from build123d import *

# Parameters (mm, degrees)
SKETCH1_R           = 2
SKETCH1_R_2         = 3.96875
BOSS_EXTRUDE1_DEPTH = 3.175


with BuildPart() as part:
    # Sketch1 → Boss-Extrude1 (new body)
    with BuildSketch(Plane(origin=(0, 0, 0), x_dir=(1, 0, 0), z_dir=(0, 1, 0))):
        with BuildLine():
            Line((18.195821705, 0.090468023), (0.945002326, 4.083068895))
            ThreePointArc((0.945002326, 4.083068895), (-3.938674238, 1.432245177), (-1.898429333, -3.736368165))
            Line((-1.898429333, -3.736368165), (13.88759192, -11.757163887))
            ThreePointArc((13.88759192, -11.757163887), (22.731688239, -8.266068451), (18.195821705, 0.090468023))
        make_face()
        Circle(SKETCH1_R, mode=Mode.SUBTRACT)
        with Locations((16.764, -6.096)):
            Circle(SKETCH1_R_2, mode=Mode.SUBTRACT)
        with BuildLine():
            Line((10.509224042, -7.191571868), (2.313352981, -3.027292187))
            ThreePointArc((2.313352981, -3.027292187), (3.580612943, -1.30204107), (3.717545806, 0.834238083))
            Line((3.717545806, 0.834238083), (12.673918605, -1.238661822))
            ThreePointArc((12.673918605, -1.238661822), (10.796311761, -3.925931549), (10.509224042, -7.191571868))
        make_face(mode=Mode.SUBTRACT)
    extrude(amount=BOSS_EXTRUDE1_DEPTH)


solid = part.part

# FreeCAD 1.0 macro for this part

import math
import FreeCAD as App
import Part
import Sketcher
Q = App.Units.Quantity

doc = App.newDocument("Part")
body = doc.addObject("PartDesign::Body", "Body")

sketch1 = body.newObject("Sketcher::SketchObject", "Sketch")
sketch1.AttachmentSupport = (doc.getObject("XZ_Plane"), [""])
sketch1.MapMode = "FlatFace"
sketch1.addGeometry([
    Part.LineSegment(App.Vector(18.2, -0.1, 0), App.Vector(0.9, -4.1, 0)),
    Part.ArcOfCircle(Part.Circle(App.Vector(0, 0, 0), App.Vector(0, 0, 1), 4.2), math.radians(117), math.radians(283)),
    Part.LineSegment(App.Vector(-1.9, 3.7, 0), App.Vector(13.9, 11.8, 0)),
    Part.ArcOfCircle(Part.Circle(App.Vector(16.8, 6.1, 0), App.Vector(0, 0, 1), 6.3), math.radians(-77), math.radians(117)),
    Part.Circle(App.Vector(16.8, 6.1, 0), App.Vector(0, 0, 1), 4),
    Part.ArcOfCircle(Part.Circle(App.Vector(16.8, 6.1, 0), App.Vector(0, 0, 1), 6.3), math.radians(170), math.radians(230)),
    Part.LineSegment(App.Vector(10.5, 7.2, 0), App.Vector(2.3, 3, 0)),
    Part.ArcOfCircle(Part.Circle(App.Vector(0, 0, 0), App.Vector(0, 0, 1), 3.8), math.radians(-13), math.radians(53)),
    Part.LineSegment(App.Vector(3.7, -0.8, 0), App.Vector(12.7, 1.2, 0)),
    Part.Circle(App.Vector(0, 0, 0), App.Vector(0, 0, 1), 2),
], False)
sketch1.addConstraint([
    Sketcher.Constraint("Tangent", 0, 2, 1, 2),
    Sketcher.Constraint("Tangent", 1, 1, 2, 1),
    Sketcher.Constraint("Tangent", 2, 2, 3, 2),
    Sketcher.Constraint("Tangent", 3, 1, 0, 1),
    Sketcher.Constraint("Coincident", 5, 1, 6, 1),
    Sketcher.Constraint("Coincident", 6, 2, 7, 2),
    Sketcher.Constraint("Coincident", 7, 1, 8, 1),
    Sketcher.Constraint("Coincident", 8, 2, 5, 2),
    Sketcher.Constraint("Coincident", 1, 3, -1, 1),
    Sketcher.Constraint("Coincident", 7, 3, -1, 1),
    Sketcher.Constraint("Coincident", 9, 3, -1, 1),
    Sketcher.Constraint("Coincident", 4, 3, 3, 3),
    Sketcher.Constraint("Coincident", 5, 3, 3, 3),
    Sketcher.Constraint("Equal", 3, 5),
    Sketcher.Constraint("Parallel", 2, 6),
    Sketcher.Constraint("Parallel", 0, 8),
    Sketcher.Constraint("Equal", 6, 8),
    Sketcher.Constraint("Radius", 3, Q("0.25 in")),
    Sketcher.Constraint("Radius", 7, Q("0.15 in")),
    Sketcher.Constraint("Diameter", 4, Q("0.3125 in")),
    Sketcher.Constraint("Radius", 1, Q("0.165 in")),
    Sketcher.Constraint("Diameter", 9, 4.0),
    Sketcher.Constraint("DistanceX", -1, 1, 3, 3, Q("0.66 in")),
    Sketcher.Constraint("DistanceY", -1, 1, 3, 3, Q("0.24 in")),
    Sketcher.Constraint("DistanceY", -1, 1, 5, 1, 7.191572),
])
pad1 = body.newObject("PartDesign::Pad", "Pad")
pad1.Profile = sketch1
pad1.Length = Q("0.125 in")
pad1.Reversed = True

doc.recompute()
